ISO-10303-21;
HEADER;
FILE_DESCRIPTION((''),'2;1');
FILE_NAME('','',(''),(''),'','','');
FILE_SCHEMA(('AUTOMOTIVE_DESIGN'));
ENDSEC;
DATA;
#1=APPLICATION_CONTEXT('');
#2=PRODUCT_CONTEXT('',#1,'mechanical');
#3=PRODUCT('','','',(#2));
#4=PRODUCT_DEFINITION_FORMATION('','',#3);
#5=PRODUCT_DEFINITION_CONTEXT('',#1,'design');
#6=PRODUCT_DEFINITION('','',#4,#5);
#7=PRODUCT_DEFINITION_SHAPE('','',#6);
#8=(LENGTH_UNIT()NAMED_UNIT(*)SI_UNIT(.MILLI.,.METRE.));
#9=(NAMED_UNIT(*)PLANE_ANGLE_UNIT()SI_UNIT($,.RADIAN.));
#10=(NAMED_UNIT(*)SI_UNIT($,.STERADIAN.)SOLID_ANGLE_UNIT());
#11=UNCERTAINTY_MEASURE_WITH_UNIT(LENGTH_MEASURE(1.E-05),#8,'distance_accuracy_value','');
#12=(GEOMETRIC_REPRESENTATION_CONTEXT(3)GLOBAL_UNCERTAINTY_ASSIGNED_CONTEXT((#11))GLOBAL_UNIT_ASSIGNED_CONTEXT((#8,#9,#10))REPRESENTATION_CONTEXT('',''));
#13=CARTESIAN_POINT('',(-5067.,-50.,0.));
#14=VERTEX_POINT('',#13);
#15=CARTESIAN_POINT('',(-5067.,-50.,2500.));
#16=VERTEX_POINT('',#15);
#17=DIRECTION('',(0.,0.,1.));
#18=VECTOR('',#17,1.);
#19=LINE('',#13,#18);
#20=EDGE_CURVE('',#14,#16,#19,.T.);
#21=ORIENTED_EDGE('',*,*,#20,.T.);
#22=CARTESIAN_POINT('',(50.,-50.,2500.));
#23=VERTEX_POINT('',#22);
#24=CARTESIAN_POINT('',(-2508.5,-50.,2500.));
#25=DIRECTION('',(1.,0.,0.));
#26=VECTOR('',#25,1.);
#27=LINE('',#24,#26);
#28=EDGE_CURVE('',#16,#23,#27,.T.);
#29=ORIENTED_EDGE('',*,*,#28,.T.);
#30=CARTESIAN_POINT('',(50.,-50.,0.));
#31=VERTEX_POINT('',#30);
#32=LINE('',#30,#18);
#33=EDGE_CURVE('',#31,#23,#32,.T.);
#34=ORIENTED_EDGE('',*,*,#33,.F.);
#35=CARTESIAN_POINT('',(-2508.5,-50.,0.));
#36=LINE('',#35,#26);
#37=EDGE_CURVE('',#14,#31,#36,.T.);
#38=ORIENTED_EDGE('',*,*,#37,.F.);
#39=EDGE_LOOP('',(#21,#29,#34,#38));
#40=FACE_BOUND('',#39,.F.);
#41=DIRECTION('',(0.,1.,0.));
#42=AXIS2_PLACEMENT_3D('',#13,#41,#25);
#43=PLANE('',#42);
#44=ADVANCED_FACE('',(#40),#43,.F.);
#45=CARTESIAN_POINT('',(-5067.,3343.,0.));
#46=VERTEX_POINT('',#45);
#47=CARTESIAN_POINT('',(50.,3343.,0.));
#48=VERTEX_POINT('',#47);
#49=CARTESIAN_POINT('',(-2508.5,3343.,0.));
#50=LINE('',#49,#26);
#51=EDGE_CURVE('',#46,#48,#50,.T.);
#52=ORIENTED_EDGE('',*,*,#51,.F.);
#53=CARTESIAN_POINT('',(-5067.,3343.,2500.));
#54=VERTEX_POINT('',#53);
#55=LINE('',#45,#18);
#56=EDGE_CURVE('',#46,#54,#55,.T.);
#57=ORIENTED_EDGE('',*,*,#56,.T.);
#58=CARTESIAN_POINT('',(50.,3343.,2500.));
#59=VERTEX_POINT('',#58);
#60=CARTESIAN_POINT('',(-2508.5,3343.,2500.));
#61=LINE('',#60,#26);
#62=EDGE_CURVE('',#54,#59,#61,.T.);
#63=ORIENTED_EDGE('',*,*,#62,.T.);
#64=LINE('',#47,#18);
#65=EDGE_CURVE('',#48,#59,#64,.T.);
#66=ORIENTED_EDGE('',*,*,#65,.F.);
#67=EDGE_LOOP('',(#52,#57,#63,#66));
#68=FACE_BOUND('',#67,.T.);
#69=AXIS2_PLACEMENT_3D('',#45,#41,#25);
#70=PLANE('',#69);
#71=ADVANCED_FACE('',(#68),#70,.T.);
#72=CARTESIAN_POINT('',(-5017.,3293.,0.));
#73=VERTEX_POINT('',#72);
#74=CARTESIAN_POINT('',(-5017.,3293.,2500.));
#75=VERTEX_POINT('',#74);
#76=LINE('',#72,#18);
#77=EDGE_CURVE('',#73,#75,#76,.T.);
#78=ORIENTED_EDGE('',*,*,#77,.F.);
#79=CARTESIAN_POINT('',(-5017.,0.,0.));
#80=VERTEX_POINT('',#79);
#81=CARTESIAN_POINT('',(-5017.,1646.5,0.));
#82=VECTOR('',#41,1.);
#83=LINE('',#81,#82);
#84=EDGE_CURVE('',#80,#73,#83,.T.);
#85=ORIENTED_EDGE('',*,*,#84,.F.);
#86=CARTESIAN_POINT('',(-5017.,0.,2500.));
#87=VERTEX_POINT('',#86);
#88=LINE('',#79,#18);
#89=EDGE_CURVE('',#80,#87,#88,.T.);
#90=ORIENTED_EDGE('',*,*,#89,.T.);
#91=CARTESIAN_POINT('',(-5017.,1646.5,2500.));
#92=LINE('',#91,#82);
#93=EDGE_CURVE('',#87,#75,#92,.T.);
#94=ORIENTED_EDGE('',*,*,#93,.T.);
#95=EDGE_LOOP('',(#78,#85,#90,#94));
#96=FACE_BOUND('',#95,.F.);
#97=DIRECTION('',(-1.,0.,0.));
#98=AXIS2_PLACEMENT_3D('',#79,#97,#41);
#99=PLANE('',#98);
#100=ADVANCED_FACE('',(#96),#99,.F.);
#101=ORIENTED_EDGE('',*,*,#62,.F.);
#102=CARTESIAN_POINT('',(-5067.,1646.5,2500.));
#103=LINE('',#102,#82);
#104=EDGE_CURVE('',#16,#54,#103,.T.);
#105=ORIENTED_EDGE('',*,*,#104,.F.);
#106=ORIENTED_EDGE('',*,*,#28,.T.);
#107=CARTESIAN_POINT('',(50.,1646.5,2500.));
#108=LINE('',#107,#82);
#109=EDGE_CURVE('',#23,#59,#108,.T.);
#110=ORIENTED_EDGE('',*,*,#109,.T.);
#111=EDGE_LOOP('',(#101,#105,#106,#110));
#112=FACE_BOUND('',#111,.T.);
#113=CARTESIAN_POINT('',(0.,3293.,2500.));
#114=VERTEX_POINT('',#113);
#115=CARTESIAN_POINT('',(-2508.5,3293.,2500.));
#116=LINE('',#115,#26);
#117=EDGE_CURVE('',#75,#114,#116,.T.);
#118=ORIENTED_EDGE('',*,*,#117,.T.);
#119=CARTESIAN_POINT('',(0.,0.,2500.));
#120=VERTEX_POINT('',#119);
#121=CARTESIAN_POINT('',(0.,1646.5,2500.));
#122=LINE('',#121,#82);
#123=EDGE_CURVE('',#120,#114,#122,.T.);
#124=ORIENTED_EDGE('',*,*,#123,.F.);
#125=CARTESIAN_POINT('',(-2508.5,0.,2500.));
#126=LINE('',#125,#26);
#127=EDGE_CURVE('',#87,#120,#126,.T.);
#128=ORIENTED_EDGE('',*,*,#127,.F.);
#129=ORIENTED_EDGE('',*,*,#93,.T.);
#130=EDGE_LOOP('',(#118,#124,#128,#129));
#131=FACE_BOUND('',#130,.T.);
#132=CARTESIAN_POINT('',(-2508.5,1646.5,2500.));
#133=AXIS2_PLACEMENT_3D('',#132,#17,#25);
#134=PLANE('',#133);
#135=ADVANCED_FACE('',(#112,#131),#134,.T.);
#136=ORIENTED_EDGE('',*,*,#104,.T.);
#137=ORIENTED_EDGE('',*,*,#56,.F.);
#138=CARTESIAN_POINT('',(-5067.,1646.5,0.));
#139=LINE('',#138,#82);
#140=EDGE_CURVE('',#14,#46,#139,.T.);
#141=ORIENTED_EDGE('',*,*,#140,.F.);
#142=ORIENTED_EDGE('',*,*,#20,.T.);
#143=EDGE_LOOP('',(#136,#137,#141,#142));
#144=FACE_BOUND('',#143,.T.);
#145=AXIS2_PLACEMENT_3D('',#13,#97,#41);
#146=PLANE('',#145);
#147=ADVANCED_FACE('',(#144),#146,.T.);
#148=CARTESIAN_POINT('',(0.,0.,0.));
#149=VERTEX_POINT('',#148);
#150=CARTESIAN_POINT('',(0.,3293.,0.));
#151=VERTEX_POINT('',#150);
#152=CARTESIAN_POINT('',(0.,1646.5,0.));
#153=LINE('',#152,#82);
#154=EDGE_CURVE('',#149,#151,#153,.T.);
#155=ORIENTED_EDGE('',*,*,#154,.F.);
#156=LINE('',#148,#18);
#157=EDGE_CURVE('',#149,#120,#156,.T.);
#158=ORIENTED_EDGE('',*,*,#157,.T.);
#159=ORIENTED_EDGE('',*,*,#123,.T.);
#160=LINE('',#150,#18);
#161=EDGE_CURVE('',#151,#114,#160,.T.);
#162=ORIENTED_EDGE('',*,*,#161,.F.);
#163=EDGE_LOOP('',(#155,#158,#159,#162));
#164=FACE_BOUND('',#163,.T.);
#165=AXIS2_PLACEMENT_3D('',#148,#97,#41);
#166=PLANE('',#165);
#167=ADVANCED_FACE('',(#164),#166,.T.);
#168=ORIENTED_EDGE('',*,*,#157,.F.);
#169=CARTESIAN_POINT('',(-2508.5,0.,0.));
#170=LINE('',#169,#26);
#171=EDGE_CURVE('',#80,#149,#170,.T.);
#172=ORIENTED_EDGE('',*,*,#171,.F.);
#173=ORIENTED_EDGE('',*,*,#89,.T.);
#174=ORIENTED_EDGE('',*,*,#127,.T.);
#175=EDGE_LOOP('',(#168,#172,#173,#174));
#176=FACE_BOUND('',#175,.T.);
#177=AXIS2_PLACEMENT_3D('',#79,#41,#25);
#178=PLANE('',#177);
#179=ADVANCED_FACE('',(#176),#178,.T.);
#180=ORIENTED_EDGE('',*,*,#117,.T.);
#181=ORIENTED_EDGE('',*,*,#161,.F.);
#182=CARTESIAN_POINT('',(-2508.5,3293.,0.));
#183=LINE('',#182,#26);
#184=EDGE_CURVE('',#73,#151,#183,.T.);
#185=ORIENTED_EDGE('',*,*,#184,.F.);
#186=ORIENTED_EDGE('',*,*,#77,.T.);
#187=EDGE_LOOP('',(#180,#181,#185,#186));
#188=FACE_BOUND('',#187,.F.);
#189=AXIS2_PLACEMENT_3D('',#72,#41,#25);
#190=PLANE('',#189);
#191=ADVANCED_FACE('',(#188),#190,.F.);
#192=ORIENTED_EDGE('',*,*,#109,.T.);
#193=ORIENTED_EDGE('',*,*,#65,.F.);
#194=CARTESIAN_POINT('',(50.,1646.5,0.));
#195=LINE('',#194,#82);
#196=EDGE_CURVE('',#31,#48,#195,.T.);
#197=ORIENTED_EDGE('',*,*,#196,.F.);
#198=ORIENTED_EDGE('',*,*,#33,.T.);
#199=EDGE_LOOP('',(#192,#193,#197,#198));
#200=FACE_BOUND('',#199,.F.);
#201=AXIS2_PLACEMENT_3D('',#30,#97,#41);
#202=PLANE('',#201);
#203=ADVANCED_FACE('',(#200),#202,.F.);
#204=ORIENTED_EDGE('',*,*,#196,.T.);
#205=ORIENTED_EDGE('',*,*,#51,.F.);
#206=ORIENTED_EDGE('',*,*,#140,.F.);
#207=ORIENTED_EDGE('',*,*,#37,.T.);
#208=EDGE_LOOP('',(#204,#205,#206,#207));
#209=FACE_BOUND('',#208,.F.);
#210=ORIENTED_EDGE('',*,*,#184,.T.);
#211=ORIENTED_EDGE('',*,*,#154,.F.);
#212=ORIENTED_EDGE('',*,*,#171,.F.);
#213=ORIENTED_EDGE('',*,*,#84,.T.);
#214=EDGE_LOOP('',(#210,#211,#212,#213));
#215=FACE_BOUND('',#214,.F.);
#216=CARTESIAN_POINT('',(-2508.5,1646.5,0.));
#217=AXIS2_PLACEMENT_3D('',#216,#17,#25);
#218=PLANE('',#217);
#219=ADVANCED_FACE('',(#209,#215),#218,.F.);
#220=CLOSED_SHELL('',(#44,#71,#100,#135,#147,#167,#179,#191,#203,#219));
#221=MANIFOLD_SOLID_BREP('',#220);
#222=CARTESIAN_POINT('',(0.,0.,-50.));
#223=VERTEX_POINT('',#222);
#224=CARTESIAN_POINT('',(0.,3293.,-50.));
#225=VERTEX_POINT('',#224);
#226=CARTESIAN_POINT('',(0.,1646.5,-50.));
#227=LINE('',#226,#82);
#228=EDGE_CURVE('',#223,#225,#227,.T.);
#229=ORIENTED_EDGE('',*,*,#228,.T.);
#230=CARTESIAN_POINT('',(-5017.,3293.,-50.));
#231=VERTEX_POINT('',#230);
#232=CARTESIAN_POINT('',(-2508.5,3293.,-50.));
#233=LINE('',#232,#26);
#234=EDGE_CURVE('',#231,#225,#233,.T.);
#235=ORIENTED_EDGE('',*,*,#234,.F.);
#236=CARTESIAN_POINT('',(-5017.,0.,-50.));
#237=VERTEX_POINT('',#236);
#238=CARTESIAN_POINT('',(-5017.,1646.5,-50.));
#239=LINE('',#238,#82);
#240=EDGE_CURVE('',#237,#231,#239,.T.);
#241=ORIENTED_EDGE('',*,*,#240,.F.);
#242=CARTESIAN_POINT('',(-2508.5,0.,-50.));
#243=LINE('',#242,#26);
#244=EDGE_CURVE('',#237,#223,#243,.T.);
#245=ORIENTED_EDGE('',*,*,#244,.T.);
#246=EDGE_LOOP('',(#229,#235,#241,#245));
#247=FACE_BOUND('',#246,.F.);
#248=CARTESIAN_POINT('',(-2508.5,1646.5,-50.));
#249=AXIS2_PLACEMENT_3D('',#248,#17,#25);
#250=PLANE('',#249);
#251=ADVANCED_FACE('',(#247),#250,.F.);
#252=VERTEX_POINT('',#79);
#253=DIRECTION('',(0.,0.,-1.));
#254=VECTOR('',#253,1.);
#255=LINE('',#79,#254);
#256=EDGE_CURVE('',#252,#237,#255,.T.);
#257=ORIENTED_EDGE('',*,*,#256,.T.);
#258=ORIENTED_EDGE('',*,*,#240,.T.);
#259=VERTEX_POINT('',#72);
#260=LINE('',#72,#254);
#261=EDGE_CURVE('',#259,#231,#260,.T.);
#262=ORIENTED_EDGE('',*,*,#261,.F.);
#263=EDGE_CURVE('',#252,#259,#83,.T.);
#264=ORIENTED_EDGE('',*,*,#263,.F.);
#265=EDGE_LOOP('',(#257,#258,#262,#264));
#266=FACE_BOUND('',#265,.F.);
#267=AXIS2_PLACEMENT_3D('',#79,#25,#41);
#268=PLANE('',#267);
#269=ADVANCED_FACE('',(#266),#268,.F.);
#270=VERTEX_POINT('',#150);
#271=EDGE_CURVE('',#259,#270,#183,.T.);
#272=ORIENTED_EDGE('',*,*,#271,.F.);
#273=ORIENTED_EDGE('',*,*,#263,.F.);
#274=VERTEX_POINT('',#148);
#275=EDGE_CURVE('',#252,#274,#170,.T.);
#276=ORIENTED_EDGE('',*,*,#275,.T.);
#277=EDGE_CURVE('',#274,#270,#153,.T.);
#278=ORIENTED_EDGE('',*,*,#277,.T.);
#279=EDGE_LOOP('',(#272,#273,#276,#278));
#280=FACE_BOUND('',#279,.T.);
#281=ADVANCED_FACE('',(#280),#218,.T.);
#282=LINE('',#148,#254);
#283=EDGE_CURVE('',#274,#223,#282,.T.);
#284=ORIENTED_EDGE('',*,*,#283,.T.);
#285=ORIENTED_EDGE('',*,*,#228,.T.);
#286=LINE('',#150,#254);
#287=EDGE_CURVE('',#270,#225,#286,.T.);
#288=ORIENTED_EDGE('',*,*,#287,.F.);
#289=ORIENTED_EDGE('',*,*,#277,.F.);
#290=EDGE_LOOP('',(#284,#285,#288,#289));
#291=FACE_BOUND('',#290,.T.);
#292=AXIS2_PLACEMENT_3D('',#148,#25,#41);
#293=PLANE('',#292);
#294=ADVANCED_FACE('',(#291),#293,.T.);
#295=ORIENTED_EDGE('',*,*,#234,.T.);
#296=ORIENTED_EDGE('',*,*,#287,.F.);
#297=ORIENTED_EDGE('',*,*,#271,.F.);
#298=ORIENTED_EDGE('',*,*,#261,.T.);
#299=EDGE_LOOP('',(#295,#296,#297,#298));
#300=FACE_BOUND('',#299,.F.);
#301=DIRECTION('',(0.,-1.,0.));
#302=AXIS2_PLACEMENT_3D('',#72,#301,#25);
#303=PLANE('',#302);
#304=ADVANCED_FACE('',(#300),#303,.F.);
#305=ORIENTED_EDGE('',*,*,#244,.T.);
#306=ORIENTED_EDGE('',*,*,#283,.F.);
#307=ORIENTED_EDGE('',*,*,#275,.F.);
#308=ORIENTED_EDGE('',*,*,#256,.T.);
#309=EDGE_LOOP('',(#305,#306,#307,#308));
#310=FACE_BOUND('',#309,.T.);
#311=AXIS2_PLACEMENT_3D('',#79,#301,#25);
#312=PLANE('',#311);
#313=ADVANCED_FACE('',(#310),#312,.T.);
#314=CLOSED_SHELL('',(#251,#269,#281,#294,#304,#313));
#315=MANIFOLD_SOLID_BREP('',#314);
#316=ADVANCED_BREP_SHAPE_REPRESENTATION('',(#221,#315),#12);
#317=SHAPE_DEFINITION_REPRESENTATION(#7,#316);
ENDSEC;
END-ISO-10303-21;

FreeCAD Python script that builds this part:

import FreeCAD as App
import Part
import Sketcher
from FreeCAD import Vector

doc = App.newDocument("Part")
params = doc.addObject("Spreadsheet::Sheet", "Params")
for row, (alias, value) in enumerate([
    ("sketch1_width", "5017 mm"),
    ("sketch1_height", "3293 mm"),
    ("pad1_length", "50 mm"),
    ("sketch2_width", "5117 mm"),
    ("sketch2_width2", "5017 mm"),
    ("sketch2_height", "3393 mm"),
    ("sketch2_height2", "3293 mm"),
    ("pad2_length", "2500 mm"),
], start=1):
    params.set(f"A{row}", alias)
    params.set(f"B{row}", "=" + value)
    params.setAlias(f"B{row}", alias)

body = doc.addObject("PartDesign::Body", "Body")

sketch1 = doc.addObject("Sketcher::SketchObject", "Sketch")
body.addObject(sketch1)
sketch1.AttachmentSupport = (doc.XY_Plane, [""])
sketch1.MapMode = "FlatFace"
sketch1.addGeometry([
    Part.LineSegment(Vector(-5017, 3293, 0), Vector(-5017, 0, 0)),
    Part.LineSegment(Vector(-5017, 0, 0), Vector(0, 0, 0)),
    Part.LineSegment(Vector(0, 0, 0), Vector(0, 3293, 0)),
    Part.LineSegment(Vector(0, 3293, 0), Vector(-5017, 3293, 0)),
], False)
sketch1.addConstraint([
    Sketcher.Constraint("Coincident", 0, 2, 1, 1),
    Sketcher.Constraint("Coincident", 1, 2, 2, 1),
    Sketcher.Constraint("Coincident", 2, 2, 3, 1),
    Sketcher.Constraint("Coincident", 3, 2, 0, 1),
    Sketcher.Constraint("Vertical", 0),
    Sketcher.Constraint("Horizontal", 1),
    Sketcher.Constraint("Vertical", 2),
    Sketcher.Constraint("Horizontal", 3),
    Sketcher.Constraint("Coincident", 1, 2, -1, 1),
    Sketcher.Constraint("DistanceX", 1, 1, 1, 2, 5017.0),
    Sketcher.Constraint("DistanceY", 0, 2, 0, 1, 3293.0),
])
sketch1.setExpression("Constraints[9]", "Params.sketch1_width")
sketch1.setExpression("Constraints[10]", "Params.sketch1_height")
pad1 = doc.addObject("PartDesign::Pad", "Pad")
body.addObject(pad1)
pad1.Profile = sketch1
pad1.setExpression("Length", "Params.pad1_length")
pad1.Reversed = True
body2 = doc.addObject("PartDesign::Body", "Body001")

sketch2 = doc.addObject("Sketcher::SketchObject", "Sketch001")
body2.addObject(sketch2)
sketch2.AttachmentSupport = (doc.getObject("XY_Plane001"), [""])
sketch2.MapMode = "FlatFace"
sketch2.addGeometry([
    Part.LineSegment(Vector(-5067, 3343, 0), Vector(-5067, -50, 0)),
    Part.LineSegment(Vector(-5067, -50, 0), Vector(50, -50, 0)),
    Part.LineSegment(Vector(50, -50, 0), Vector(50, 3343, 0)),
    Part.LineSegment(Vector(50, 3343, 0), Vector(-5067, 3343, 0)),
    Part.LineSegment(Vector(0, 0, 0), Vector(-5017, 0, 0)),
    Part.LineSegment(Vector(-5017, 0, 0), Vector(-5017, 3293, 0)),
    Part.LineSegment(Vector(-5017, 3293, 0), Vector(0, 3293, 0)),
    Part.LineSegment(Vector(0, 3293, 0), Vector(0, 0, 0)),
], False)
sketch2.addConstraint([
    Sketcher.Constraint("Coincident", 0, 2, 1, 1),
    Sketcher.Constraint("Coincident", 1, 2, 2, 1),
    Sketcher.Constraint("Coincident", 2, 2, 3, 1),
    Sketcher.Constraint("Coincident", 3, 2, 0, 1),
    Sketcher.Constraint("Coincident", 4, 2, 5, 1),
    Sketcher.Constraint("Coincident", 5, 2, 6, 1),
    Sketcher.Constraint("Coincident", 6, 2, 7, 1),
    Sketcher.Constraint("Coincident", 7, 2, 4, 1),
    Sketcher.Constraint("Vertical", 0),
    Sketcher.Constraint("Horizontal", 1),
    Sketcher.Constraint("Vertical", 2),
    Sketcher.Constraint("Horizontal", 3),
    Sketcher.Constraint("Horizontal", 4),
    Sketcher.Constraint("Vertical", 5),
    Sketcher.Constraint("Horizontal", 6),
    Sketcher.Constraint("Vertical", 7),
    Sketcher.Constraint("Coincident", 7, 2, -1, 1),
    Sketcher.Constraint("DistanceX", 1, 1, 1, 2, 5117.0),
    Sketcher.Constraint("DistanceX", 4, 2, 4, 1, 5017.0),
    Sketcher.Constraint("DistanceY", 0, 2, 0, 1, 3393.0),
    Sketcher.Constraint("DistanceY", 5, 1, 5, 2, 3293.0),
    Sketcher.Constraint("DistanceX", 0, 2, -1, 1, 5067.0),
    Sketcher.Constraint("DistanceY", 0, 2, -1, 1, 50.0),
])
sketch2.setExpression("Constraints[17]", "Params.sketch2_width")
sketch2.setExpression("Constraints[18]", "Params.sketch2_width2")
sketch2.setExpression("Constraints[19]", "Params.sketch2_height")
sketch2.setExpression("Constraints[20]", "Params.sketch2_height2")
pad2 = doc.addObject("PartDesign::Pad", "Pad001")
body2.addObject(pad2)
pad2.Profile = sketch2
pad2.setExpression("Length", "Params.pad2_length")

doc.recompute()
